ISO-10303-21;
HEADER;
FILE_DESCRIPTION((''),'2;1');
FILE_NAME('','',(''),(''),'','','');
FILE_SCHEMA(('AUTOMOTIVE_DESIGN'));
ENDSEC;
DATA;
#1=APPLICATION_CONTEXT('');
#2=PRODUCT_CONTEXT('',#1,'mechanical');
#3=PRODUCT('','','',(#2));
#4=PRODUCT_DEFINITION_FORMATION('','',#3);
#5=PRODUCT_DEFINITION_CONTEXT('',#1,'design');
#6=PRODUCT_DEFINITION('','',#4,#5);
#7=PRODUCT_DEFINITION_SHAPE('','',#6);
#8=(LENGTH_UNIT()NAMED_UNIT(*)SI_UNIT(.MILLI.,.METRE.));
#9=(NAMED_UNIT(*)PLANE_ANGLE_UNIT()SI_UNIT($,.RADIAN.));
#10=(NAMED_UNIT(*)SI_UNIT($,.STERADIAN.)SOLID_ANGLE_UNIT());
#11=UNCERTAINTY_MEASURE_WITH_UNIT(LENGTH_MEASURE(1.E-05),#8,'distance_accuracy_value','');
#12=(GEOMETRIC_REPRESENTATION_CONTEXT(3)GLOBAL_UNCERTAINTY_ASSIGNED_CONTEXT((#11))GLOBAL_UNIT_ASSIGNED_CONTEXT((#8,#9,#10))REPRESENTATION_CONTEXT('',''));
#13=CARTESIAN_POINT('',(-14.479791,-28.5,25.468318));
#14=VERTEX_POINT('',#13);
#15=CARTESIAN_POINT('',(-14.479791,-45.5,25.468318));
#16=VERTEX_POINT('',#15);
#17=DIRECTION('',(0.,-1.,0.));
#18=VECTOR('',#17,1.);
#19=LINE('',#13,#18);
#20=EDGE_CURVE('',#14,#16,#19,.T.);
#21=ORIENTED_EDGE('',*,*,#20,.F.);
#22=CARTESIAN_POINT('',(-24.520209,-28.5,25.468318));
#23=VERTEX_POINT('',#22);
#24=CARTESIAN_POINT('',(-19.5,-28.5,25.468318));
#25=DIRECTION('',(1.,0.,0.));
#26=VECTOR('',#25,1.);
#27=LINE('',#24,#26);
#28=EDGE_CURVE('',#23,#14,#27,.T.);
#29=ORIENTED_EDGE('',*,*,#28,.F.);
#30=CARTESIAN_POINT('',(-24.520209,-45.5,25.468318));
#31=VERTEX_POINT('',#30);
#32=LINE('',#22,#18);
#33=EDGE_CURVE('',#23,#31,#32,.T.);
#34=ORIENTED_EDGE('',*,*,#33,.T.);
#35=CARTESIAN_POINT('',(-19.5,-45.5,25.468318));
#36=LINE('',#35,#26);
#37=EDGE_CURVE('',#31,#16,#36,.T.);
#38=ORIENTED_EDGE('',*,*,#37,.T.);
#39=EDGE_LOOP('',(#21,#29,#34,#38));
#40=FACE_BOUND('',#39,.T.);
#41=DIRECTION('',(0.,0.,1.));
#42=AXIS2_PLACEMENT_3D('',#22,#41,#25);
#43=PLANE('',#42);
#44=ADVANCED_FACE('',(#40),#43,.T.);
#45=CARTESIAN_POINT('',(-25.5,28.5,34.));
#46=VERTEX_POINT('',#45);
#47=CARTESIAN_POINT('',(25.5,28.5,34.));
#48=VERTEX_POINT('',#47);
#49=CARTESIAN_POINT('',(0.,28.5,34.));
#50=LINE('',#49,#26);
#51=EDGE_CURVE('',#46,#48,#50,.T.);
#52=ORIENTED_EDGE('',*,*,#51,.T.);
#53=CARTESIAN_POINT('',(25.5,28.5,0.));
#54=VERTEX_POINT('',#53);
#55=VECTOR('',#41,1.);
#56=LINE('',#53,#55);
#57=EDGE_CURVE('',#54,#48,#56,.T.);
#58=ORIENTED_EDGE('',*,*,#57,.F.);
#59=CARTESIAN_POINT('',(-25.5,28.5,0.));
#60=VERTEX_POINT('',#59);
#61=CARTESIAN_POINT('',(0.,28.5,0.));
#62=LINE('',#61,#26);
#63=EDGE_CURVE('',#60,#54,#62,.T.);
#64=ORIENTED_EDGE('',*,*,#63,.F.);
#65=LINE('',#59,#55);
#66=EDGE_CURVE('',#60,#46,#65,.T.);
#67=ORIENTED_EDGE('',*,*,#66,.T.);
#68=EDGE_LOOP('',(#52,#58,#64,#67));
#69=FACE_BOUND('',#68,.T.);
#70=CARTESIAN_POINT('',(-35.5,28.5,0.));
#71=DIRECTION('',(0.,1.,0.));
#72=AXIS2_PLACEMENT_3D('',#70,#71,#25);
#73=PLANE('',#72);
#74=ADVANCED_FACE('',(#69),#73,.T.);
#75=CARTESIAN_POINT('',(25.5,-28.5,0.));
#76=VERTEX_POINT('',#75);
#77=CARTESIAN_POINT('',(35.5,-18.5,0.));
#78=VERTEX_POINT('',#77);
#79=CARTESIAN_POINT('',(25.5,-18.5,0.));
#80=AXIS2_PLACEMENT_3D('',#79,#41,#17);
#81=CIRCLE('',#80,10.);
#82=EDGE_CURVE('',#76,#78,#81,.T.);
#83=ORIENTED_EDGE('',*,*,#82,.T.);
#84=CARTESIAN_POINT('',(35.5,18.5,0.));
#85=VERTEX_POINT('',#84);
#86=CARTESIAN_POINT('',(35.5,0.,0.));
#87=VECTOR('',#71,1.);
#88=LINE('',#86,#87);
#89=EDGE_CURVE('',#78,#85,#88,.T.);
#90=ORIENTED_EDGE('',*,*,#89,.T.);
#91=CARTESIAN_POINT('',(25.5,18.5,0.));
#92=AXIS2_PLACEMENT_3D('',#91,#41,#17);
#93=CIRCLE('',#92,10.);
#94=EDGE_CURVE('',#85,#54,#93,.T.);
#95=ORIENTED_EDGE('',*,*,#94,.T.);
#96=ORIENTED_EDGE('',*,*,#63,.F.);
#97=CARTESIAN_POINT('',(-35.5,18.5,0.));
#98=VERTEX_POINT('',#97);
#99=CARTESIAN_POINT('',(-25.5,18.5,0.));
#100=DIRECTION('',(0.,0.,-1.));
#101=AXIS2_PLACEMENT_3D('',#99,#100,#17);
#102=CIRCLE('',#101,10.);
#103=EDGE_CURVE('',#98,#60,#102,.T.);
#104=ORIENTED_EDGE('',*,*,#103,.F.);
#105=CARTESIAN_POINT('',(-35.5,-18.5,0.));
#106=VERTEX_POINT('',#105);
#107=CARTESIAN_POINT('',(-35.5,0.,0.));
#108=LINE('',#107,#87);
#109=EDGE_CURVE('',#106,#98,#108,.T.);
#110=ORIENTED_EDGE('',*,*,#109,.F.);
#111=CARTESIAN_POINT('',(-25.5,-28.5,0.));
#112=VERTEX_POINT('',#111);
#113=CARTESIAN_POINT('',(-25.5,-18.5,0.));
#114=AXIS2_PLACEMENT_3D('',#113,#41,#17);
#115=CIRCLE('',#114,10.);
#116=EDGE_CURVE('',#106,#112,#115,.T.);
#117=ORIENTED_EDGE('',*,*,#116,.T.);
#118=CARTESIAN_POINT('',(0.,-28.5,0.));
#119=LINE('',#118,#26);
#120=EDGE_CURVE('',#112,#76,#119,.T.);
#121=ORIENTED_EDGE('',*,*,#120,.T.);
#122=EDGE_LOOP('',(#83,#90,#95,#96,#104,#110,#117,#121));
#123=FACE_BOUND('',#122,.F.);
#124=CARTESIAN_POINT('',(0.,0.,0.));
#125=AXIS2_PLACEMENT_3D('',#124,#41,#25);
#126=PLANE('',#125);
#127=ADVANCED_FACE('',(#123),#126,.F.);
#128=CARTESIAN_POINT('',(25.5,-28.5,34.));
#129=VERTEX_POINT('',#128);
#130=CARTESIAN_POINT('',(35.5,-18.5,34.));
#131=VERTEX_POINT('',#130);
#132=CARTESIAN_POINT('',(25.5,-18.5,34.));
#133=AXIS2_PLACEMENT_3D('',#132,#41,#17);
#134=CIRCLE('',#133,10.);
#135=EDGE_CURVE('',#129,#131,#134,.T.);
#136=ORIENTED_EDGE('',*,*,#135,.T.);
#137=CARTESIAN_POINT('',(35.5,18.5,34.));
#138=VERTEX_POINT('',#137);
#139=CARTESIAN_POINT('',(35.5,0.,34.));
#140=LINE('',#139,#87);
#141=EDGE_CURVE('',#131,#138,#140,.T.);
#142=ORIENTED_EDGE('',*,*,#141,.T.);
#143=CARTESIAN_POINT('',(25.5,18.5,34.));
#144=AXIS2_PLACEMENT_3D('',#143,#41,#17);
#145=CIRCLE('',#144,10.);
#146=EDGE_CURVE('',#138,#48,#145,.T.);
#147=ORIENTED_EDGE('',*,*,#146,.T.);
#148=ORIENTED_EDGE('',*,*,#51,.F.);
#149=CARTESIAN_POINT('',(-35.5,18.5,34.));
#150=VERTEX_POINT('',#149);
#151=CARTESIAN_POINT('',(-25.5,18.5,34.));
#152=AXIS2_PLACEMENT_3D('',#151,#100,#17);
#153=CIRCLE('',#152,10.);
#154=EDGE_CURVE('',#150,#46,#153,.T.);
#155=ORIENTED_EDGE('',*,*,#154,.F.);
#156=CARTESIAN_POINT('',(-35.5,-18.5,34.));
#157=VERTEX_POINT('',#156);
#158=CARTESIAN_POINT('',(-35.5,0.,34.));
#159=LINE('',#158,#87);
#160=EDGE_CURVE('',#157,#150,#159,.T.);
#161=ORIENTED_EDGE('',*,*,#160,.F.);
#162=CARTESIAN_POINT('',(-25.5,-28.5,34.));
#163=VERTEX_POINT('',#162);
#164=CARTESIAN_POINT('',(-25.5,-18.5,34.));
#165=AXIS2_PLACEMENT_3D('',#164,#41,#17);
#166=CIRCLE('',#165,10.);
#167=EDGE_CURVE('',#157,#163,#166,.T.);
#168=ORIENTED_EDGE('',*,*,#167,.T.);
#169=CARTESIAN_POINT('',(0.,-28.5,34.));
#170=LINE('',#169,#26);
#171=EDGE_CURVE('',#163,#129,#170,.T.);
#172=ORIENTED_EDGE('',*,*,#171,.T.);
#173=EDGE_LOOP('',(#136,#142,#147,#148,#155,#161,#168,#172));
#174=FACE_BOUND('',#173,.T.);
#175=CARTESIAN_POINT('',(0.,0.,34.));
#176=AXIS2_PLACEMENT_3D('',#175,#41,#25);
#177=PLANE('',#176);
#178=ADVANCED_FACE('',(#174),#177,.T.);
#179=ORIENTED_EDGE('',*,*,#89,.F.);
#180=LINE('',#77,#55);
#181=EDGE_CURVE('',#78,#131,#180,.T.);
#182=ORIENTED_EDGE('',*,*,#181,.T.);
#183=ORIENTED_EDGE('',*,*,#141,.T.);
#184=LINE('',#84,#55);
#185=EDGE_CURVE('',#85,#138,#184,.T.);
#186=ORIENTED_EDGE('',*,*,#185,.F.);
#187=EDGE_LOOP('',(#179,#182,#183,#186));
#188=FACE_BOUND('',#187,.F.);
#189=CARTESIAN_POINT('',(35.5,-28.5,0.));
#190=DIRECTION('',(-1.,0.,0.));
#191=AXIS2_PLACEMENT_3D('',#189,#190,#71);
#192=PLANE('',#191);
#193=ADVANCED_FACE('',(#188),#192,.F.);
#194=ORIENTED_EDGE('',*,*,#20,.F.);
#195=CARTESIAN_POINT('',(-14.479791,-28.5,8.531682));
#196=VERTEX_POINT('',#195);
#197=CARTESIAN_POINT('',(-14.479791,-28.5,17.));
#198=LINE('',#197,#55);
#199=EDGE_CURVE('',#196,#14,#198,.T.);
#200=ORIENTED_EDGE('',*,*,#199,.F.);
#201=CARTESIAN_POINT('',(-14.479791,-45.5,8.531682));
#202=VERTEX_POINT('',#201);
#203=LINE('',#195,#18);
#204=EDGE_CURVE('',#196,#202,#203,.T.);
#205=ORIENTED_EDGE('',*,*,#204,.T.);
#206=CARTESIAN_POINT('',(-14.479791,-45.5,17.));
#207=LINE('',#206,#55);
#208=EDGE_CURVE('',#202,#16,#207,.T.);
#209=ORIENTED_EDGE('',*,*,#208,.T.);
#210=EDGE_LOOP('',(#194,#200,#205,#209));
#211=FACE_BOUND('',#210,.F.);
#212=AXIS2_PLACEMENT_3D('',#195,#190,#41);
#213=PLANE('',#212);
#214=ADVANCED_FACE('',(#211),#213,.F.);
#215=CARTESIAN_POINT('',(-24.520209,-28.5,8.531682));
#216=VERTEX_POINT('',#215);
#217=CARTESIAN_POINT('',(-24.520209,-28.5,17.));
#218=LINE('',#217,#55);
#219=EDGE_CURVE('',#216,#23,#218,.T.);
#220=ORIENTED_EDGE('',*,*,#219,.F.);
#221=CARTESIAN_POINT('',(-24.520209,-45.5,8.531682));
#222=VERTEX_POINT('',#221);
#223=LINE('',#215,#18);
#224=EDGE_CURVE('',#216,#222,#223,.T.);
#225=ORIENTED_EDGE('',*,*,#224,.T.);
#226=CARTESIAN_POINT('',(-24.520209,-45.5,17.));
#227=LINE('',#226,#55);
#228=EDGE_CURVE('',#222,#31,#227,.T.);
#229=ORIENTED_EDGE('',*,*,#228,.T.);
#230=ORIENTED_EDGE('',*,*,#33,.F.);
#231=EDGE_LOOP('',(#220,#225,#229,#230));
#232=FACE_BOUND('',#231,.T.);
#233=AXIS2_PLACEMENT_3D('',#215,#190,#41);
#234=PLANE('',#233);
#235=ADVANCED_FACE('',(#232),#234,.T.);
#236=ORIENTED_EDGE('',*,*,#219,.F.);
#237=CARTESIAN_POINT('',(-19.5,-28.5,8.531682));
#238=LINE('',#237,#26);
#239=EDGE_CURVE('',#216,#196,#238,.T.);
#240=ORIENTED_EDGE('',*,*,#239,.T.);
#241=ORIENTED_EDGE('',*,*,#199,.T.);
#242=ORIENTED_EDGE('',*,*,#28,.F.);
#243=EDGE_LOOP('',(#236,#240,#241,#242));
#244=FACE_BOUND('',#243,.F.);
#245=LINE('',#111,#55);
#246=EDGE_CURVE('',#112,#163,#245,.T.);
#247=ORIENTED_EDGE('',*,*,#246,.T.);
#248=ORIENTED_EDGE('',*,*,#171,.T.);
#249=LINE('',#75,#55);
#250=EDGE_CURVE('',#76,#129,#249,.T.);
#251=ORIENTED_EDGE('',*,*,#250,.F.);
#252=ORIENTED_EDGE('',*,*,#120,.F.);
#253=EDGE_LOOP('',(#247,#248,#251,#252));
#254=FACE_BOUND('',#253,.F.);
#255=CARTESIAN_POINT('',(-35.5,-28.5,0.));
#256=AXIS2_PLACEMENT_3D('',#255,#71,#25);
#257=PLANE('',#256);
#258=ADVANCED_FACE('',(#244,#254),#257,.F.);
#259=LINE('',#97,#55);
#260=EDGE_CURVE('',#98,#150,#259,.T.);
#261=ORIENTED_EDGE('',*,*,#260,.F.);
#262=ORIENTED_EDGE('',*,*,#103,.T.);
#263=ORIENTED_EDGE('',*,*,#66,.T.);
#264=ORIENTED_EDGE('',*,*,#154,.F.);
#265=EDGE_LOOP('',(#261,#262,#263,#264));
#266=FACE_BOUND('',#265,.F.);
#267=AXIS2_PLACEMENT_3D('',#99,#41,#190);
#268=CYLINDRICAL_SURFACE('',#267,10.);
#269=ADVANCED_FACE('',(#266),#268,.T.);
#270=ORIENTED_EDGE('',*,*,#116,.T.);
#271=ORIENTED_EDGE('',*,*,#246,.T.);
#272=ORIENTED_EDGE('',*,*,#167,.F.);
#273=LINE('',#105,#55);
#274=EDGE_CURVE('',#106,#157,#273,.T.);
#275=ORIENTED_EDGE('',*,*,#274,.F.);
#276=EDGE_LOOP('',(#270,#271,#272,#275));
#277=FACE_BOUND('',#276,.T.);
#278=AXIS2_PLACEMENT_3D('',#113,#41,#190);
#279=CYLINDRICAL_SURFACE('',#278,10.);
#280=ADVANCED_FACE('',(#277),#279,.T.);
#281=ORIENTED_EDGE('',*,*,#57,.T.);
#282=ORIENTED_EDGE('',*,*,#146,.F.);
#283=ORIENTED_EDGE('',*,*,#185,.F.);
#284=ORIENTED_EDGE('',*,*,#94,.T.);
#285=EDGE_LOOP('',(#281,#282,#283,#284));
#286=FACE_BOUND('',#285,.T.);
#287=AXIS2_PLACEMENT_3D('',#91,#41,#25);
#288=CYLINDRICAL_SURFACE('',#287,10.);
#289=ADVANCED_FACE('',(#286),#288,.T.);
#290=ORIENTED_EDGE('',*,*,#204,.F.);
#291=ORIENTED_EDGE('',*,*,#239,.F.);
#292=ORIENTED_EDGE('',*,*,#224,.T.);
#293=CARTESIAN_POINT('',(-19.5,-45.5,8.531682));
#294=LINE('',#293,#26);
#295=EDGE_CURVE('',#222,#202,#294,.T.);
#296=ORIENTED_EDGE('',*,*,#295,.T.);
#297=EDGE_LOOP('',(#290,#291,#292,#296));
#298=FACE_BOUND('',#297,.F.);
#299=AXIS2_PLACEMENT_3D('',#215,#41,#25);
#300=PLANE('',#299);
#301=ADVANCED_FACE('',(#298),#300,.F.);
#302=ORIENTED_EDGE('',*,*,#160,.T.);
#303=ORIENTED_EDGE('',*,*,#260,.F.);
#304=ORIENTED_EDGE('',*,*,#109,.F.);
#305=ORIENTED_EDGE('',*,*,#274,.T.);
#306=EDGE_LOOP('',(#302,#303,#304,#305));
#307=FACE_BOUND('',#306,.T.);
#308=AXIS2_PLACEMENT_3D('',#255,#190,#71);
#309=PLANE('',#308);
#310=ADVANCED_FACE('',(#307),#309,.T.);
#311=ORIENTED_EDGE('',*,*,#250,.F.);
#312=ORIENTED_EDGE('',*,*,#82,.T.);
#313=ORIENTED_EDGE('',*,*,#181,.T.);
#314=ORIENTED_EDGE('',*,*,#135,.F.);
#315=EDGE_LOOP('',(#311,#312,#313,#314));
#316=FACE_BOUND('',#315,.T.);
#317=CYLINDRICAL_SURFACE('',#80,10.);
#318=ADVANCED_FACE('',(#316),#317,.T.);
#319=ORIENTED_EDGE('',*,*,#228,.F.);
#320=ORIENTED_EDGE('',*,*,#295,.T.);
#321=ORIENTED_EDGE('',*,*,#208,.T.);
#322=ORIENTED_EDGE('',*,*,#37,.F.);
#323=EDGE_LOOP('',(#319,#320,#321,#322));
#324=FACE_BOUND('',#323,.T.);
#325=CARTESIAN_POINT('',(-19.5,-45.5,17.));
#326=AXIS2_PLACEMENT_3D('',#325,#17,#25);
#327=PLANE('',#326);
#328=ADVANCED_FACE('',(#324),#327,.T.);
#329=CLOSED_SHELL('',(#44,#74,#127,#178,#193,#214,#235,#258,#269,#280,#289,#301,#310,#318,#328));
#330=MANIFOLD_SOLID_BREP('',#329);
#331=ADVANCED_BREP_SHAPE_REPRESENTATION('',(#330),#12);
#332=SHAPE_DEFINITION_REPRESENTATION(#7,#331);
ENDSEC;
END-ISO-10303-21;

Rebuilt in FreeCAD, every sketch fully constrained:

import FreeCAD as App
import Part
import Sketcher


def edges_at(feature, points):
    """Names of the edges that pass closest to the given points."""
    edges = feature.Shape.Edges
    near = lambda p: min(range(len(edges)), key=lambda i: edges[i].distToShape(Part.Vertex(*p))[0])
    return sorted({f"Edge{near(p) + 1}" for p in points})

doc = App.newDocument("Part")
body = doc.addObject("PartDesign::Body", "Body")

sketch1 = body.newObject("Sketcher::SketchObject", "Sketch")
sketch1.AttachmentSupport = (doc.getObject("XY_Plane"), [""])
sketch1.MapMode = "FlatFace"
sketch1.addGeometry([
    Part.LineSegment(App.Vector(-35.5, 28.5, 0), App.Vector(-35.5, -28.5, 0)),
    Part.LineSegment(App.Vector(-35.5, -28.5, 0), App.Vector(35.5, -28.5, 0)),
    Part.LineSegment(App.Vector(35.5, -28.5, 0), App.Vector(35.5, 28.5, 0)),
    Part.LineSegment(App.Vector(35.5, 28.5, 0), App.Vector(-35.5, 28.5, 0)),
], False)
sketch1.addConstraint([
    Sketcher.Constraint("Coincident", 0, 2, 1, 1),
    Sketcher.Constraint("Coincident", 1, 2, 2, 1),
    Sketcher.Constraint("Coincident", 2, 2, 3, 1),
    Sketcher.Constraint("Coincident", 3, 2, 0, 1),
    Sketcher.Constraint("Vertical", 0),
    Sketcher.Constraint("Horizontal", 1),
    Sketcher.Constraint("Vertical", 2),
    Sketcher.Constraint("Horizontal", 3),
    Sketcher.Constraint("Symmetric", 0, 2, 2, 2, -1, 1),
    Sketcher.Constraint("DistanceX", 1, 1, 1, 2, 71.0),
    Sketcher.Constraint("DistanceY", 0, 2, 0, 1, 57.0),
])
pad1 = body.newObject("PartDesign::Pad", "Pad")
pad1.Profile = sketch1
pad1.Length = 34
doc.recompute()

fillet = body.newObject("PartDesign::Fillet", "Fillet")
fillet.Base = (pad1, edges_at(pad1, [
    (-35.5, 28.5, 17),
    (35.5, 28.5, 17),
    (-35.5, -28.5, 17),
    (35.5, -28.5, 17),
]))
fillet.Radius = 10

sketch2 = body.newObject("Sketcher::SketchObject", "Sketch001")
sketch2.AttachmentSupport = (doc.getObject("XZ_Plane"), [""])
sketch2.MapMode = "FlatFace"
sketch2.AttachmentOffset = App.Placement(App.Vector(0, 0, 28.5), App.Rotation())
sketch2.addGeometry([
    Part.LineSegment(App.Vector(-24.520209, 25.468318, 0), App.Vector(-24.520209, 8.531682, 0)),
    Part.LineSegment(App.Vector(-24.520209, 8.531682, 0), App.Vector(-14.479791, 8.531682, 0)),
    Part.LineSegment(App.Vector(-14.479791, 8.531682, 0), App.Vector(-14.479791, 25.468318, 0)),
    Part.LineSegment(App.Vector(-14.479791, 25.468318, 0), App.Vector(-24.520209, 25.468318, 0)),
], False)
sketch2.addConstraint([
    Sketcher.Constraint("Coincident", 0, 2, 1, 1),
    Sketcher.Constraint("Coincident", 1, 2, 2, 1),
    Sketcher.Constraint("Coincident", 2, 2, 3, 1),
    Sketcher.Constraint("Coincident", 3, 2, 0, 1),
    Sketcher.Constraint("Vertical", 0),
    Sketcher.Constraint("Horizontal", 1),
    Sketcher.Constraint("Vertical", 2),
    Sketcher.Constraint("Horizontal", 3),
    Sketcher.Constraint("DistanceX", 1, 1, 1, 2, 10.040418),
    Sketcher.Constraint("DistanceY", 0, 2, 0, 1, 16.936636),
    Sketcher.Constraint("DistanceX", 0, 2, -1, 1, 24.520209),
    Sketcher.Constraint("DistanceY", -1, 1, 2, 2, 25.468318),
])
pad2 = body.newObject("PartDesign::Pad", "Pad001")
pad2.Profile = sketch2
pad2.Length = 17

doc.recompute()
